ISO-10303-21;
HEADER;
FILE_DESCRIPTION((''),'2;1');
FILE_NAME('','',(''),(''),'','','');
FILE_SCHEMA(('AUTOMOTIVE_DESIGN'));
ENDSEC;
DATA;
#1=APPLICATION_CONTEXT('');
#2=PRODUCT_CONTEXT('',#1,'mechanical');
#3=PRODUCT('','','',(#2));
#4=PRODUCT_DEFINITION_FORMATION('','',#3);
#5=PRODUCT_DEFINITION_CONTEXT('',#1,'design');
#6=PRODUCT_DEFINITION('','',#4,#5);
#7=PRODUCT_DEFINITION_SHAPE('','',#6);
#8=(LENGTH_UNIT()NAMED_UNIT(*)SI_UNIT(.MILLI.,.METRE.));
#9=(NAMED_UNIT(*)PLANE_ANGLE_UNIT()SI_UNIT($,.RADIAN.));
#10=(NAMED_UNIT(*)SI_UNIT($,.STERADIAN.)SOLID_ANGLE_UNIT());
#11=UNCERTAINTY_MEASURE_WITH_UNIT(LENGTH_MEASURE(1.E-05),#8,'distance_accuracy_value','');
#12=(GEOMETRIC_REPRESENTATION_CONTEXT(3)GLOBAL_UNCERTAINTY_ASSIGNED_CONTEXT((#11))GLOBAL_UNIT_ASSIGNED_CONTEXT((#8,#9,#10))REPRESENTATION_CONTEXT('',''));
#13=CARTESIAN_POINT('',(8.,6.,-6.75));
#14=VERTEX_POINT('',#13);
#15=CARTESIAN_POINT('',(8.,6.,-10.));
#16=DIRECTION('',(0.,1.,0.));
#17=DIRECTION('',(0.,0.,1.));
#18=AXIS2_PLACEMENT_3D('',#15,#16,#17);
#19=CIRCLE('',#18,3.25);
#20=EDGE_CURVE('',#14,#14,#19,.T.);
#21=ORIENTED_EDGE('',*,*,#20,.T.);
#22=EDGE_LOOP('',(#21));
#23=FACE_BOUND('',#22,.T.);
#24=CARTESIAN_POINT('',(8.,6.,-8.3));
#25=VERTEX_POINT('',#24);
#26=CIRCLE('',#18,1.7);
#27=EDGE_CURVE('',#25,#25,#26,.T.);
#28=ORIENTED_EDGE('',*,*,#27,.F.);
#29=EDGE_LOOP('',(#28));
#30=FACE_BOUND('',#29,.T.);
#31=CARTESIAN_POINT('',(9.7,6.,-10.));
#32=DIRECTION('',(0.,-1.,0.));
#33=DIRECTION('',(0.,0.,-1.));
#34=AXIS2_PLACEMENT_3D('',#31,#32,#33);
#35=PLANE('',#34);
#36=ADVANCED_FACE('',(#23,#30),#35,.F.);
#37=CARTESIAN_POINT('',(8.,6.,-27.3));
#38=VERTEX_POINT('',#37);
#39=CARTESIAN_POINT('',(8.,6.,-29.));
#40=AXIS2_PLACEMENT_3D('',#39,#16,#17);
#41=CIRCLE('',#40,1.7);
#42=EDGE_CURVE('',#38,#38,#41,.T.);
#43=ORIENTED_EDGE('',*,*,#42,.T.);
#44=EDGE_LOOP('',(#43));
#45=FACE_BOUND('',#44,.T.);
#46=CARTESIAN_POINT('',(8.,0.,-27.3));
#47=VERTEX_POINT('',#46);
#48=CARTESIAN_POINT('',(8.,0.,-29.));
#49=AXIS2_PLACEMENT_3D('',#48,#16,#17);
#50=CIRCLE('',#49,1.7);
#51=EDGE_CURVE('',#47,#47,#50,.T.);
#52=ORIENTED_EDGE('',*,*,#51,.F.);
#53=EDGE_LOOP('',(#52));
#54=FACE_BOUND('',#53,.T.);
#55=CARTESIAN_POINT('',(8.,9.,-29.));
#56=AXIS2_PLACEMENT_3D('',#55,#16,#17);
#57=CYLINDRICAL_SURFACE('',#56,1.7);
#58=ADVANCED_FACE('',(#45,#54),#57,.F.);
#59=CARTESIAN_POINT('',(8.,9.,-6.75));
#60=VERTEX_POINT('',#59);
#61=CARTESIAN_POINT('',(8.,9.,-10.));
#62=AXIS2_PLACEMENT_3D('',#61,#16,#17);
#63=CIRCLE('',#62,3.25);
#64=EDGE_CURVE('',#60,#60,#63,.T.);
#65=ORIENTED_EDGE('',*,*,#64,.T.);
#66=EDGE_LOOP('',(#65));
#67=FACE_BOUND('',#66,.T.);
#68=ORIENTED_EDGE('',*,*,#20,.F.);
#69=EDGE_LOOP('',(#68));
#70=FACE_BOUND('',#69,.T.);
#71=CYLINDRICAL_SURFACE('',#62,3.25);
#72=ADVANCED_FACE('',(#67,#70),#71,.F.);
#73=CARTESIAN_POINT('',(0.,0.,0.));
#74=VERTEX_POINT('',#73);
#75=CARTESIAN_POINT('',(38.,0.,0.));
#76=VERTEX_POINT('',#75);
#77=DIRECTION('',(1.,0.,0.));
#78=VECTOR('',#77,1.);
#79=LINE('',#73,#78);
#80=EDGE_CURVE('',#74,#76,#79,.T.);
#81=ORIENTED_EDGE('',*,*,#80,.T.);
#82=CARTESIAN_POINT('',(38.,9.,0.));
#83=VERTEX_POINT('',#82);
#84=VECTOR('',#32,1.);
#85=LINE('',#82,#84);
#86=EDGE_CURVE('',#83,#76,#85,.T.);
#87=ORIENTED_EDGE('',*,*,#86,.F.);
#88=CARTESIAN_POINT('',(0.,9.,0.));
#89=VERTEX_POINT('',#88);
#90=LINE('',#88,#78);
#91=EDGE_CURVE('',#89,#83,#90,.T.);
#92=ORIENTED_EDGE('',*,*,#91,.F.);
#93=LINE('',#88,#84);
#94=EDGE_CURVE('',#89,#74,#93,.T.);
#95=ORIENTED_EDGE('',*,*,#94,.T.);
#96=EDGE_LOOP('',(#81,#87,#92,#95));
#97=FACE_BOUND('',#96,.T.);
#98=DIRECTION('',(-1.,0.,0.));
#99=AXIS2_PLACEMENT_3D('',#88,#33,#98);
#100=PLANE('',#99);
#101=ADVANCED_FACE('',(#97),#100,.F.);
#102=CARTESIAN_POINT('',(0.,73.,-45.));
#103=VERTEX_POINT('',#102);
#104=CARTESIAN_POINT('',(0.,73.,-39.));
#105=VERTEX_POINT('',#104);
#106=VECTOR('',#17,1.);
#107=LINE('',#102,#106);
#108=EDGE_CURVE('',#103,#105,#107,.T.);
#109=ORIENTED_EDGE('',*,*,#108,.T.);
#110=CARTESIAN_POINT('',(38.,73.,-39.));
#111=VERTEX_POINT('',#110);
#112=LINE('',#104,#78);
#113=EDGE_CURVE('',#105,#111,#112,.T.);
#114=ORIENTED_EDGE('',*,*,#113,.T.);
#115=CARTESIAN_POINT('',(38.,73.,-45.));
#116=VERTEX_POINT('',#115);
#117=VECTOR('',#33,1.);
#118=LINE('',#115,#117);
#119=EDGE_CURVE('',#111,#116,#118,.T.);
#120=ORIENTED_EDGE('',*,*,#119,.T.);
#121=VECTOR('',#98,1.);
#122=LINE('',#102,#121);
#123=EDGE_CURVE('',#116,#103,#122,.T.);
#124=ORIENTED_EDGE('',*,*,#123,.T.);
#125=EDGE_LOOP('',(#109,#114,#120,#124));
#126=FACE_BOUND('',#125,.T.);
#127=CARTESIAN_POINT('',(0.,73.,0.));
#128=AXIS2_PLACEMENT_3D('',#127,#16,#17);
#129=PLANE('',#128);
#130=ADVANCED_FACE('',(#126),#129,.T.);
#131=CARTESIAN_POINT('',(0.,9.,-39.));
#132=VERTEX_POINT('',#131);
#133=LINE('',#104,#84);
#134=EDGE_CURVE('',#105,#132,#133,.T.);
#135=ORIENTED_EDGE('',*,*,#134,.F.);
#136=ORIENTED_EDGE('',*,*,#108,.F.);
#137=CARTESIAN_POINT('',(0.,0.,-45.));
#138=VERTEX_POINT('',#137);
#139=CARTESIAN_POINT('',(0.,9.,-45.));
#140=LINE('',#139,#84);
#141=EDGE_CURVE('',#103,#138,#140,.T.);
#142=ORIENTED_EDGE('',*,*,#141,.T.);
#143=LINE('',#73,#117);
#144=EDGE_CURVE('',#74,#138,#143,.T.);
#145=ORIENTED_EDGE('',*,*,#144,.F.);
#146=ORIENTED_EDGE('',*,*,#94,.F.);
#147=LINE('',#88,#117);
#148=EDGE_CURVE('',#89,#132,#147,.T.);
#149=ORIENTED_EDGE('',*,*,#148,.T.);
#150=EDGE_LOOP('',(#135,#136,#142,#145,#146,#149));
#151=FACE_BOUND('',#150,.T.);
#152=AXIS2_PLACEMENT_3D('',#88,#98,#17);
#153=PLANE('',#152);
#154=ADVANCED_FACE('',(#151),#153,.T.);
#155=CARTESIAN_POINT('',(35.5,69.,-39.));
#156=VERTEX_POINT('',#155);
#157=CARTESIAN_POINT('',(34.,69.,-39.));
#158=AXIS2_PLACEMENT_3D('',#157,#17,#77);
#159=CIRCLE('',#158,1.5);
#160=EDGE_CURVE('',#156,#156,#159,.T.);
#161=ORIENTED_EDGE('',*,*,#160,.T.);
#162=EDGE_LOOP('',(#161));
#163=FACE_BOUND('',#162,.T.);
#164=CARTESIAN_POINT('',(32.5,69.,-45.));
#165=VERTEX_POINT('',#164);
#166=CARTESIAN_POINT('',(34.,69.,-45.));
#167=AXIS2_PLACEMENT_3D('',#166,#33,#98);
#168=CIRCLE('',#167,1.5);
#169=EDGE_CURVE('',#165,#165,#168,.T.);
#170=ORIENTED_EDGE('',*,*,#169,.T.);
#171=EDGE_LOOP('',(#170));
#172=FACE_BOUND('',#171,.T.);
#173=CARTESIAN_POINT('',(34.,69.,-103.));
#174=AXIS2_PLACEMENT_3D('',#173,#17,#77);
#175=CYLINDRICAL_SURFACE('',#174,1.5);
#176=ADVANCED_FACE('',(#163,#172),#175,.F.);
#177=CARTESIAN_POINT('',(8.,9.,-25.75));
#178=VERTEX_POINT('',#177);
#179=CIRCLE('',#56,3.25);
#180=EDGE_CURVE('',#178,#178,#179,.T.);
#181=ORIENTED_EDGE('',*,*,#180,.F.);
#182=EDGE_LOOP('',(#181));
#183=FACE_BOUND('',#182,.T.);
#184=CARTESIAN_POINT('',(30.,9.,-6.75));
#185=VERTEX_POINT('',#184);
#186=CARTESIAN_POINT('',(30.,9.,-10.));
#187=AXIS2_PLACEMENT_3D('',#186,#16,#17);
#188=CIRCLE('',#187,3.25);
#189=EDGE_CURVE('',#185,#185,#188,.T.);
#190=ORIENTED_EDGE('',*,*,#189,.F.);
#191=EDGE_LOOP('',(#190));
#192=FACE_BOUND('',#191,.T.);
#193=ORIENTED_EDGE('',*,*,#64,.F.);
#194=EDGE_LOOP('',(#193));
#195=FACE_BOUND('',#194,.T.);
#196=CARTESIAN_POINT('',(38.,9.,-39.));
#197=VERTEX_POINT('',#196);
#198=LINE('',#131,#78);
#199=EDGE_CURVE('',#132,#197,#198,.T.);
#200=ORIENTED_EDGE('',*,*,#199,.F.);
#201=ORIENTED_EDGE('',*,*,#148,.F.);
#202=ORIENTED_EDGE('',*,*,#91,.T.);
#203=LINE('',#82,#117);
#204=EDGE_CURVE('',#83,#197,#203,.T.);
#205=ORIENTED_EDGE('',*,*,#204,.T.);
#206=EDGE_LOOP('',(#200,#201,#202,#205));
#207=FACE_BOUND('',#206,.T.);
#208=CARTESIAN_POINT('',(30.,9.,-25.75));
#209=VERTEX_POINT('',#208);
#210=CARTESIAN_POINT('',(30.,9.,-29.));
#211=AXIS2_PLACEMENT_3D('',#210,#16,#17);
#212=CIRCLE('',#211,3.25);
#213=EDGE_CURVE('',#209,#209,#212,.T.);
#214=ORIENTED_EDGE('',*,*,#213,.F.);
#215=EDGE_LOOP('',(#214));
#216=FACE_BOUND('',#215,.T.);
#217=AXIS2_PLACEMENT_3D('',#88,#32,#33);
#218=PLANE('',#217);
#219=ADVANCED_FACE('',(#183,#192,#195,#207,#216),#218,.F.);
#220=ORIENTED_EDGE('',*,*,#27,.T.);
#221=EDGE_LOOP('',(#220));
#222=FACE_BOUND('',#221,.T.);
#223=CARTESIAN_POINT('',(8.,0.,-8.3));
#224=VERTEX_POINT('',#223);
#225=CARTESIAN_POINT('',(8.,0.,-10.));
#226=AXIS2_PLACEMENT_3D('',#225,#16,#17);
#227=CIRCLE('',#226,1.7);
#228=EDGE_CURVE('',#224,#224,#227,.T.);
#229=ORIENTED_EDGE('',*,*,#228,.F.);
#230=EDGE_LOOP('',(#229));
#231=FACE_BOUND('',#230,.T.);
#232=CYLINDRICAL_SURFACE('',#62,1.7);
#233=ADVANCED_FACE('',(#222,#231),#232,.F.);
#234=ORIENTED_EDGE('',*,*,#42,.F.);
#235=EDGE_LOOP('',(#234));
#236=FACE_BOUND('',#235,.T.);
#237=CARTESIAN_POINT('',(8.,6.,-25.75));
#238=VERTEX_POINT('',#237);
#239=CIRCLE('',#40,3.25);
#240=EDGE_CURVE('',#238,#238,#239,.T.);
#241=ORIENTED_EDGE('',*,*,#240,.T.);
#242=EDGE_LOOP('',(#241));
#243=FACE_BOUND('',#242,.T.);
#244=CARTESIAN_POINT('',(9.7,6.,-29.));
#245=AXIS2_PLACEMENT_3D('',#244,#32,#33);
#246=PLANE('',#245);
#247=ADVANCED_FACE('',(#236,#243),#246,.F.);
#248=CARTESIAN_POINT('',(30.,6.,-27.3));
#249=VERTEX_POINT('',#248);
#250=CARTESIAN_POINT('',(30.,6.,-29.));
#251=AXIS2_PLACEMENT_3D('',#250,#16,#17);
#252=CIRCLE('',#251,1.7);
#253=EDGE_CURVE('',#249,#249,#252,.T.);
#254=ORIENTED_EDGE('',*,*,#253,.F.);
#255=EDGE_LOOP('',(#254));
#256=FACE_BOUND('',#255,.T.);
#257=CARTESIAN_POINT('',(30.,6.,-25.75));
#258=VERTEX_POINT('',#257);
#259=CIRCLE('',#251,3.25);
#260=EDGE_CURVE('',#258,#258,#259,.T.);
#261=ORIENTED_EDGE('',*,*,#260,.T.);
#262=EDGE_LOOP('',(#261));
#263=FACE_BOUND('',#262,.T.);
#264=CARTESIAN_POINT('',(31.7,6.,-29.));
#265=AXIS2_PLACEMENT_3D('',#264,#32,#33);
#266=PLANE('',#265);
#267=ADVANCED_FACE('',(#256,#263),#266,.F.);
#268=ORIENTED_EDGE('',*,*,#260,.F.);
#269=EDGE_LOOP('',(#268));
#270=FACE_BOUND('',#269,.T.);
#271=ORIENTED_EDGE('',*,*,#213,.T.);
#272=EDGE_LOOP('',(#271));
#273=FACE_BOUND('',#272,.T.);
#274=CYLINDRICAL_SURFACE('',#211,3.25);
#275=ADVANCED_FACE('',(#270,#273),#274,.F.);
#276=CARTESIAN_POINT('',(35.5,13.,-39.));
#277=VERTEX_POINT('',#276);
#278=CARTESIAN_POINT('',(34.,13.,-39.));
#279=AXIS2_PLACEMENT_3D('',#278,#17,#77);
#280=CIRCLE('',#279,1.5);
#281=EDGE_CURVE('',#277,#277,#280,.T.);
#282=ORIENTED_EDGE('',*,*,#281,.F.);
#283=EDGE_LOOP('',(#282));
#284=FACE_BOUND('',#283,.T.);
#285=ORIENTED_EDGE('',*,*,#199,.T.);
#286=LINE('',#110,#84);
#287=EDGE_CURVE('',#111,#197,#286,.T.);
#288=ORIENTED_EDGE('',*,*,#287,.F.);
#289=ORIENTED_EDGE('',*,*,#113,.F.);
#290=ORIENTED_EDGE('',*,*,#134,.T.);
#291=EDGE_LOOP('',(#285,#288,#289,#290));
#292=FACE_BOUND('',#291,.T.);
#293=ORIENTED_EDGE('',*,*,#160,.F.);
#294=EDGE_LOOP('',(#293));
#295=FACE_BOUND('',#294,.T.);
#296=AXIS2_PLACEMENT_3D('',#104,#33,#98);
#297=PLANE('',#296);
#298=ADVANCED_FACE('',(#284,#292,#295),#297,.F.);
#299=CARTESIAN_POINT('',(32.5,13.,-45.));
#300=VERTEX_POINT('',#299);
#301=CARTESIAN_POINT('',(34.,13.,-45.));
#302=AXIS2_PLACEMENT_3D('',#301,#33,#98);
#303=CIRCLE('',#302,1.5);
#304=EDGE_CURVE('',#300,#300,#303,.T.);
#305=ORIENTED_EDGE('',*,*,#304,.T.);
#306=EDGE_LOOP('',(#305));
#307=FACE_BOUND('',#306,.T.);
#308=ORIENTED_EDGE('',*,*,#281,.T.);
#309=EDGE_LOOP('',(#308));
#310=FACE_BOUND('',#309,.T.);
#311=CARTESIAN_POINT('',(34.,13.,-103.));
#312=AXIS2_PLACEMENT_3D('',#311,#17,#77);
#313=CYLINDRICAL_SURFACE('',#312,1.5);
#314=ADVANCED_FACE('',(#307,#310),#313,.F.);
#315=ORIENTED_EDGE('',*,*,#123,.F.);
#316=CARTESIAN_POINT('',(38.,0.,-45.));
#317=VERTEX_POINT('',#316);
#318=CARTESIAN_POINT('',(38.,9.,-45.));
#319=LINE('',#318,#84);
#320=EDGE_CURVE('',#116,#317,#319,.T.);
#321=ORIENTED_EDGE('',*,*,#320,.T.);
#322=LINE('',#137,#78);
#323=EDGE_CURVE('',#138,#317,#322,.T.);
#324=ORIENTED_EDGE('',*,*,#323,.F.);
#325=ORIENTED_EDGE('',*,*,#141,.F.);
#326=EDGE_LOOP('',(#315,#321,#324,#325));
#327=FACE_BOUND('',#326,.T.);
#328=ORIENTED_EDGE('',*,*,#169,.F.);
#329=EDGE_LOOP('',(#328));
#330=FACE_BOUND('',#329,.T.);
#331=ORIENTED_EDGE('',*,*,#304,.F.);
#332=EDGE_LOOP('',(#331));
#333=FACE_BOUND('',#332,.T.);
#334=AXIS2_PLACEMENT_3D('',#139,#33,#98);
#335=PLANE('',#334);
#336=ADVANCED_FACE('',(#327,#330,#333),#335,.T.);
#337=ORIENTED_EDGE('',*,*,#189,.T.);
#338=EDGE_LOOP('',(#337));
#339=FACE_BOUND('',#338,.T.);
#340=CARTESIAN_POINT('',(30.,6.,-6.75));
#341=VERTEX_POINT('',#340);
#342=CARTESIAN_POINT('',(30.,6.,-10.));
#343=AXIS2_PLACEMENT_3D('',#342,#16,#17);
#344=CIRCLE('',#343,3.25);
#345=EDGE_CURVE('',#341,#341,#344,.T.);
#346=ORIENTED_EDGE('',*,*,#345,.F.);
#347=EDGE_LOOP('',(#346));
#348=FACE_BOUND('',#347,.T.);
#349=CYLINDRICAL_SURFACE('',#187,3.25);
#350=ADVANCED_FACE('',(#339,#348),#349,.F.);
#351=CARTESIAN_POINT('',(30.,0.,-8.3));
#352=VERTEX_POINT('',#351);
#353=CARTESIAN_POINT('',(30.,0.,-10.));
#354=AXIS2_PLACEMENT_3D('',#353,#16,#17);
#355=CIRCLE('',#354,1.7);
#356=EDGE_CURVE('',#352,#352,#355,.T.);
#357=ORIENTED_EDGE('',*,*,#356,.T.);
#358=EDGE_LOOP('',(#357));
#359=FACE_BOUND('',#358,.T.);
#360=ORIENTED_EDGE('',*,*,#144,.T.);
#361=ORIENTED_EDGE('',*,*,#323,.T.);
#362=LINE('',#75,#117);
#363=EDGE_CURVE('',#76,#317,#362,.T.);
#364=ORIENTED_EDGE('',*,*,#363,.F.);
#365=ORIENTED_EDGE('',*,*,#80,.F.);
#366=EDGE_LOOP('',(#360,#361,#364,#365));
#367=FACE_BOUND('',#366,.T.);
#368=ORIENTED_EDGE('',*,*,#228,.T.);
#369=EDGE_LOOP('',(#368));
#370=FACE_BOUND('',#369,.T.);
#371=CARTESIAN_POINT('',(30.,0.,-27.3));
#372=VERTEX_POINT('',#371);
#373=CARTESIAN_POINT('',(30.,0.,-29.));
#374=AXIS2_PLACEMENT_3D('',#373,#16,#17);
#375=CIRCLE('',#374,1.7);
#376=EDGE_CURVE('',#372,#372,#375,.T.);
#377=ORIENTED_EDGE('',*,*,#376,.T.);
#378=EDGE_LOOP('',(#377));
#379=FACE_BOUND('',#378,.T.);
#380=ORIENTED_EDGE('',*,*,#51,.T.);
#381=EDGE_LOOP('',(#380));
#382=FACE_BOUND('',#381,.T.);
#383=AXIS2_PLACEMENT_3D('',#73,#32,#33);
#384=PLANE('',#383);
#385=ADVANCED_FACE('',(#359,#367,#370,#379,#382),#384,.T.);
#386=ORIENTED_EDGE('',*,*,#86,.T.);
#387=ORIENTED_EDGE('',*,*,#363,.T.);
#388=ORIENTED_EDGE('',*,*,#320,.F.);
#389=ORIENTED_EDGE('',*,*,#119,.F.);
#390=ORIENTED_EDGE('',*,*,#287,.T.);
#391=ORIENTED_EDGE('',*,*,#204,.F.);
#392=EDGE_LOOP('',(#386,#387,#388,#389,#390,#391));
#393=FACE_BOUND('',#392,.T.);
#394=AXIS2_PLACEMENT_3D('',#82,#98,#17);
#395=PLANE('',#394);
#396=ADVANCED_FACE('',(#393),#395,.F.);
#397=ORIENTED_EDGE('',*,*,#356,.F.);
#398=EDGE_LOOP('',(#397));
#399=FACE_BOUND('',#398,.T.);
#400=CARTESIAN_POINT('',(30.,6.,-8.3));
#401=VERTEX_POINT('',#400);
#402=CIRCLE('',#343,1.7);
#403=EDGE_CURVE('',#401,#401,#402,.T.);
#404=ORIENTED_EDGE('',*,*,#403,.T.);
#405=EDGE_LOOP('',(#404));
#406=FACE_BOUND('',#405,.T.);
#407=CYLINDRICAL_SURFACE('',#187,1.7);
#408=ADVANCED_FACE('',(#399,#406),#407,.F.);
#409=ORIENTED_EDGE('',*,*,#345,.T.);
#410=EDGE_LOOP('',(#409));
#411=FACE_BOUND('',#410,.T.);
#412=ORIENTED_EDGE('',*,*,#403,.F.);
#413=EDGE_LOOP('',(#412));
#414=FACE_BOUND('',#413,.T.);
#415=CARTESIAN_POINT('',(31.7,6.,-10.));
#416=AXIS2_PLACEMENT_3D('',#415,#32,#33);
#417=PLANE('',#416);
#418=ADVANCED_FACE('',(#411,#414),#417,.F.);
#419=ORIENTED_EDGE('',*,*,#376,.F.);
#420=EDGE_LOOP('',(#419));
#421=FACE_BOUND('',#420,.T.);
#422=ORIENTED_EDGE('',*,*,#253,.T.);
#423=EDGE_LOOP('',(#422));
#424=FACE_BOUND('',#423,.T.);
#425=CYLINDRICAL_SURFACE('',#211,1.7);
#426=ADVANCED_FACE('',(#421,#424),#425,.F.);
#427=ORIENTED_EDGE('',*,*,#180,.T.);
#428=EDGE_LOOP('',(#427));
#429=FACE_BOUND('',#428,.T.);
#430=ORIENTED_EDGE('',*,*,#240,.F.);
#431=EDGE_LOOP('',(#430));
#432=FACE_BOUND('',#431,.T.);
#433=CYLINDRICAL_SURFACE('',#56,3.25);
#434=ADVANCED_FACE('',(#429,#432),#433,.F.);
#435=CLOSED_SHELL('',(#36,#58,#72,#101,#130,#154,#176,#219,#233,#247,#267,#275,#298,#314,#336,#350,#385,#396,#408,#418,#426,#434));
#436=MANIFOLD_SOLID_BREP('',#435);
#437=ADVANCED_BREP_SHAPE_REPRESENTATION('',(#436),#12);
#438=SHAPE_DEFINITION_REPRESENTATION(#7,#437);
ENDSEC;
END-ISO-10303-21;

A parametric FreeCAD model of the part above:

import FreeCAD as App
import Part
import Sketcher


def add_polygon(sketch, points):
    """Adds a closed chain of lines whose ends are joined by coincident constraints."""
    first, n = sketch.GeometryCount, len(points)
    for a, b in zip(points, points[1:] + points[:1]):
        sketch.addGeometry(Part.LineSegment(App.Vector(*a, 0), App.Vector(*b, 0)), False)
    for i in range(n):
        sketch.addConstraint(Sketcher.Constraint("Coincident", first + i, 2, first + (i + 1) % n, 1))

doc = App.newDocument("Part")
body = doc.addObject("PartDesign::Body", "Body")

# Sketch on XZ plane
sketch1 = doc.addObject("Sketcher::SketchObject", "Sketch")
body.addObject(sketch1)
sketch1.AttachmentSupport = (doc.XZ_Plane, [""])
sketch1.MapMode = "FlatFace"
add_polygon(sketch1, [(0, -45), (0, 0), (38, 0), (38, -45)])  # lines 0-3
sketch1.addConstraint([
    Sketcher.Constraint("Vertical", 0),
    Sketcher.Constraint("Horizontal", 1),
    Sketcher.Constraint("Vertical", 2),
    Sketcher.Constraint("Horizontal", 3),
    Sketcher.Constraint("Coincident", 0, 2, -1, 1),
    Sketcher.Constraint("DistanceX", 1, 1, 1, 2, 38.0),
    Sketcher.Constraint("DistanceY", 0, 1, 0, 2, 45.0),
])
pad1 = doc.addObject("PartDesign::Pad", "Pad")
body.addObject(pad1)
pad1.Profile = sketch1
pad1.Length = 9
pad1.Reversed = True

# Sketch on XZ plane
sketch2 = doc.addObject("Sketcher::SketchObject", "Sketch001")
body.addObject(sketch2)
sketch2.AttachmentSupport = (doc.XZ_Plane, [""])
sketch2.MapMode = "FlatFace"
sketch2.AttachmentOffset = App.Placement(App.Vector(0, 0, -9), App.Rotation())
add_polygon(sketch2, [(0, -45), (0, -39), (38, -39), (38, -45)])  # lines 0-3
sketch2.addConstraint([
    Sketcher.Constraint("Vertical", 0),
    Sketcher.Constraint("Horizontal", 1),
    Sketcher.Constraint("Vertical", 2),
    Sketcher.Constraint("Horizontal", 3),
    Sketcher.Constraint("PointOnObject", 0, 2, -2),
    Sketcher.Constraint("DistanceX", 1, 1, 1, 2, 38.0),
    Sketcher.Constraint("DistanceY", 0, 1, 0, 2, 6.0),
    Sketcher.Constraint("DistanceY", 0, 2, -1, 1, 39.0),
])
pad2 = doc.addObject("PartDesign::Pad", "Pad001")
body.addObject(pad2)
pad2.Profile = sketch2
pad2.Length = 64
pad2.Reversed = True

# Sketch on XY plane
sketch3 = doc.addObject("Sketcher::SketchObject", "Sketch002")
body.addObject(sketch3)
sketch3.AttachmentSupport = (doc.XY_Plane, [""])
sketch3.MapMode = "FlatFace"
sketch3.AttachmentOffset = App.Placement(App.Vector(0, 0, -39), App.Rotation())
sketch3.addGeometry([
    Part.Circle(App.Vector(34, 69, 0), App.Vector(0, 0, 1), 1.5),
    Part.Circle(App.Vector(34, 13, 0), App.Vector(0, 0, 1), 1.5),
], False)
sketch3.addConstraint([
    Sketcher.Constraint("Equal", 0, 1),
    Sketcher.Constraint("Vertical", 0, 3, 1, 3),
    Sketcher.Constraint("Diameter", 0, 3.0),
    Sketcher.Constraint("DistanceX", -1, 1, 0, 3, 34.0),
    Sketcher.Constraint("DistanceY", -1, 1, 0, 3, 69.0),
    Sketcher.Constraint("DistanceY", -1, 1, 1, 3, 13.0),
])
pocket1 = doc.addObject("PartDesign::Pocket", "Pocket")
body.addObject(pocket1)
pocket1.Profile = sketch3
pocket1.Length = 64

# Sketch on XZ plane
sketch4 = doc.addObject("Sketcher::SketchObject", "Sketch003")
body.addObject(sketch4)
sketch4.AttachmentSupport = (doc.XZ_Plane, [""])
sketch4.MapMode = "FlatFace"
sketch4.AttachmentOffset = App.Placement(App.Vector(0, 0, -9), App.Rotation())
sketch4.addGeometry([
    Part.Circle(App.Vector(8, -29, 0), App.Vector(0, 0, 1), 1.7),
    Part.Circle(App.Vector(8, -10, 0), App.Vector(0, 0, 1), 1.7),
    Part.Circle(App.Vector(30, -10, 0), App.Vector(0, 0, 1), 1.7),
    Part.Circle(App.Vector(30, -29, 0), App.Vector(0, 0, 1), 1.7),
], False)
sketch4.addConstraint([
    Sketcher.Constraint("Equal", 0, 1),
    Sketcher.Constraint("Equal", 1, 2),
    Sketcher.Constraint("Equal", 2, 3),
    Sketcher.Constraint("Horizontal", 1, 3, 2, 3),
    Sketcher.Constraint("Horizontal", 0, 3, 3, 3),
    Sketcher.Constraint("Vertical", 0, 3, 1, 3),
    Sketcher.Constraint("Vertical", 2, 3, 3, 3),
    Sketcher.Constraint("Diameter", 0, 3.4),
    Sketcher.Constraint("DistanceX", -1, 1, 0, 3, 8.0),
    Sketcher.Constraint("DistanceY", 0, 3, -1, 1, 29.0),
    Sketcher.Constraint("DistanceY", 1, 3, -1, 1, 10.0),
    Sketcher.Constraint("DistanceX", -1, 1, 2, 3, 30.0),
])
doc.recompute()
hole = doc.addObject("PartDesign::Hole", "Hole")
body.addObject(hole)
hole.Profile = sketch4
hole.ThreadType = "None"
hole.Diameter = 3.4
hole.DepthType = "ThroughAll"
hole.HoleCutType = "Counterbore"
hole.HoleCutDiameter = 6.5
hole.HoleCutDepth = 3
hole.Reversed = True

doc.recompute()
